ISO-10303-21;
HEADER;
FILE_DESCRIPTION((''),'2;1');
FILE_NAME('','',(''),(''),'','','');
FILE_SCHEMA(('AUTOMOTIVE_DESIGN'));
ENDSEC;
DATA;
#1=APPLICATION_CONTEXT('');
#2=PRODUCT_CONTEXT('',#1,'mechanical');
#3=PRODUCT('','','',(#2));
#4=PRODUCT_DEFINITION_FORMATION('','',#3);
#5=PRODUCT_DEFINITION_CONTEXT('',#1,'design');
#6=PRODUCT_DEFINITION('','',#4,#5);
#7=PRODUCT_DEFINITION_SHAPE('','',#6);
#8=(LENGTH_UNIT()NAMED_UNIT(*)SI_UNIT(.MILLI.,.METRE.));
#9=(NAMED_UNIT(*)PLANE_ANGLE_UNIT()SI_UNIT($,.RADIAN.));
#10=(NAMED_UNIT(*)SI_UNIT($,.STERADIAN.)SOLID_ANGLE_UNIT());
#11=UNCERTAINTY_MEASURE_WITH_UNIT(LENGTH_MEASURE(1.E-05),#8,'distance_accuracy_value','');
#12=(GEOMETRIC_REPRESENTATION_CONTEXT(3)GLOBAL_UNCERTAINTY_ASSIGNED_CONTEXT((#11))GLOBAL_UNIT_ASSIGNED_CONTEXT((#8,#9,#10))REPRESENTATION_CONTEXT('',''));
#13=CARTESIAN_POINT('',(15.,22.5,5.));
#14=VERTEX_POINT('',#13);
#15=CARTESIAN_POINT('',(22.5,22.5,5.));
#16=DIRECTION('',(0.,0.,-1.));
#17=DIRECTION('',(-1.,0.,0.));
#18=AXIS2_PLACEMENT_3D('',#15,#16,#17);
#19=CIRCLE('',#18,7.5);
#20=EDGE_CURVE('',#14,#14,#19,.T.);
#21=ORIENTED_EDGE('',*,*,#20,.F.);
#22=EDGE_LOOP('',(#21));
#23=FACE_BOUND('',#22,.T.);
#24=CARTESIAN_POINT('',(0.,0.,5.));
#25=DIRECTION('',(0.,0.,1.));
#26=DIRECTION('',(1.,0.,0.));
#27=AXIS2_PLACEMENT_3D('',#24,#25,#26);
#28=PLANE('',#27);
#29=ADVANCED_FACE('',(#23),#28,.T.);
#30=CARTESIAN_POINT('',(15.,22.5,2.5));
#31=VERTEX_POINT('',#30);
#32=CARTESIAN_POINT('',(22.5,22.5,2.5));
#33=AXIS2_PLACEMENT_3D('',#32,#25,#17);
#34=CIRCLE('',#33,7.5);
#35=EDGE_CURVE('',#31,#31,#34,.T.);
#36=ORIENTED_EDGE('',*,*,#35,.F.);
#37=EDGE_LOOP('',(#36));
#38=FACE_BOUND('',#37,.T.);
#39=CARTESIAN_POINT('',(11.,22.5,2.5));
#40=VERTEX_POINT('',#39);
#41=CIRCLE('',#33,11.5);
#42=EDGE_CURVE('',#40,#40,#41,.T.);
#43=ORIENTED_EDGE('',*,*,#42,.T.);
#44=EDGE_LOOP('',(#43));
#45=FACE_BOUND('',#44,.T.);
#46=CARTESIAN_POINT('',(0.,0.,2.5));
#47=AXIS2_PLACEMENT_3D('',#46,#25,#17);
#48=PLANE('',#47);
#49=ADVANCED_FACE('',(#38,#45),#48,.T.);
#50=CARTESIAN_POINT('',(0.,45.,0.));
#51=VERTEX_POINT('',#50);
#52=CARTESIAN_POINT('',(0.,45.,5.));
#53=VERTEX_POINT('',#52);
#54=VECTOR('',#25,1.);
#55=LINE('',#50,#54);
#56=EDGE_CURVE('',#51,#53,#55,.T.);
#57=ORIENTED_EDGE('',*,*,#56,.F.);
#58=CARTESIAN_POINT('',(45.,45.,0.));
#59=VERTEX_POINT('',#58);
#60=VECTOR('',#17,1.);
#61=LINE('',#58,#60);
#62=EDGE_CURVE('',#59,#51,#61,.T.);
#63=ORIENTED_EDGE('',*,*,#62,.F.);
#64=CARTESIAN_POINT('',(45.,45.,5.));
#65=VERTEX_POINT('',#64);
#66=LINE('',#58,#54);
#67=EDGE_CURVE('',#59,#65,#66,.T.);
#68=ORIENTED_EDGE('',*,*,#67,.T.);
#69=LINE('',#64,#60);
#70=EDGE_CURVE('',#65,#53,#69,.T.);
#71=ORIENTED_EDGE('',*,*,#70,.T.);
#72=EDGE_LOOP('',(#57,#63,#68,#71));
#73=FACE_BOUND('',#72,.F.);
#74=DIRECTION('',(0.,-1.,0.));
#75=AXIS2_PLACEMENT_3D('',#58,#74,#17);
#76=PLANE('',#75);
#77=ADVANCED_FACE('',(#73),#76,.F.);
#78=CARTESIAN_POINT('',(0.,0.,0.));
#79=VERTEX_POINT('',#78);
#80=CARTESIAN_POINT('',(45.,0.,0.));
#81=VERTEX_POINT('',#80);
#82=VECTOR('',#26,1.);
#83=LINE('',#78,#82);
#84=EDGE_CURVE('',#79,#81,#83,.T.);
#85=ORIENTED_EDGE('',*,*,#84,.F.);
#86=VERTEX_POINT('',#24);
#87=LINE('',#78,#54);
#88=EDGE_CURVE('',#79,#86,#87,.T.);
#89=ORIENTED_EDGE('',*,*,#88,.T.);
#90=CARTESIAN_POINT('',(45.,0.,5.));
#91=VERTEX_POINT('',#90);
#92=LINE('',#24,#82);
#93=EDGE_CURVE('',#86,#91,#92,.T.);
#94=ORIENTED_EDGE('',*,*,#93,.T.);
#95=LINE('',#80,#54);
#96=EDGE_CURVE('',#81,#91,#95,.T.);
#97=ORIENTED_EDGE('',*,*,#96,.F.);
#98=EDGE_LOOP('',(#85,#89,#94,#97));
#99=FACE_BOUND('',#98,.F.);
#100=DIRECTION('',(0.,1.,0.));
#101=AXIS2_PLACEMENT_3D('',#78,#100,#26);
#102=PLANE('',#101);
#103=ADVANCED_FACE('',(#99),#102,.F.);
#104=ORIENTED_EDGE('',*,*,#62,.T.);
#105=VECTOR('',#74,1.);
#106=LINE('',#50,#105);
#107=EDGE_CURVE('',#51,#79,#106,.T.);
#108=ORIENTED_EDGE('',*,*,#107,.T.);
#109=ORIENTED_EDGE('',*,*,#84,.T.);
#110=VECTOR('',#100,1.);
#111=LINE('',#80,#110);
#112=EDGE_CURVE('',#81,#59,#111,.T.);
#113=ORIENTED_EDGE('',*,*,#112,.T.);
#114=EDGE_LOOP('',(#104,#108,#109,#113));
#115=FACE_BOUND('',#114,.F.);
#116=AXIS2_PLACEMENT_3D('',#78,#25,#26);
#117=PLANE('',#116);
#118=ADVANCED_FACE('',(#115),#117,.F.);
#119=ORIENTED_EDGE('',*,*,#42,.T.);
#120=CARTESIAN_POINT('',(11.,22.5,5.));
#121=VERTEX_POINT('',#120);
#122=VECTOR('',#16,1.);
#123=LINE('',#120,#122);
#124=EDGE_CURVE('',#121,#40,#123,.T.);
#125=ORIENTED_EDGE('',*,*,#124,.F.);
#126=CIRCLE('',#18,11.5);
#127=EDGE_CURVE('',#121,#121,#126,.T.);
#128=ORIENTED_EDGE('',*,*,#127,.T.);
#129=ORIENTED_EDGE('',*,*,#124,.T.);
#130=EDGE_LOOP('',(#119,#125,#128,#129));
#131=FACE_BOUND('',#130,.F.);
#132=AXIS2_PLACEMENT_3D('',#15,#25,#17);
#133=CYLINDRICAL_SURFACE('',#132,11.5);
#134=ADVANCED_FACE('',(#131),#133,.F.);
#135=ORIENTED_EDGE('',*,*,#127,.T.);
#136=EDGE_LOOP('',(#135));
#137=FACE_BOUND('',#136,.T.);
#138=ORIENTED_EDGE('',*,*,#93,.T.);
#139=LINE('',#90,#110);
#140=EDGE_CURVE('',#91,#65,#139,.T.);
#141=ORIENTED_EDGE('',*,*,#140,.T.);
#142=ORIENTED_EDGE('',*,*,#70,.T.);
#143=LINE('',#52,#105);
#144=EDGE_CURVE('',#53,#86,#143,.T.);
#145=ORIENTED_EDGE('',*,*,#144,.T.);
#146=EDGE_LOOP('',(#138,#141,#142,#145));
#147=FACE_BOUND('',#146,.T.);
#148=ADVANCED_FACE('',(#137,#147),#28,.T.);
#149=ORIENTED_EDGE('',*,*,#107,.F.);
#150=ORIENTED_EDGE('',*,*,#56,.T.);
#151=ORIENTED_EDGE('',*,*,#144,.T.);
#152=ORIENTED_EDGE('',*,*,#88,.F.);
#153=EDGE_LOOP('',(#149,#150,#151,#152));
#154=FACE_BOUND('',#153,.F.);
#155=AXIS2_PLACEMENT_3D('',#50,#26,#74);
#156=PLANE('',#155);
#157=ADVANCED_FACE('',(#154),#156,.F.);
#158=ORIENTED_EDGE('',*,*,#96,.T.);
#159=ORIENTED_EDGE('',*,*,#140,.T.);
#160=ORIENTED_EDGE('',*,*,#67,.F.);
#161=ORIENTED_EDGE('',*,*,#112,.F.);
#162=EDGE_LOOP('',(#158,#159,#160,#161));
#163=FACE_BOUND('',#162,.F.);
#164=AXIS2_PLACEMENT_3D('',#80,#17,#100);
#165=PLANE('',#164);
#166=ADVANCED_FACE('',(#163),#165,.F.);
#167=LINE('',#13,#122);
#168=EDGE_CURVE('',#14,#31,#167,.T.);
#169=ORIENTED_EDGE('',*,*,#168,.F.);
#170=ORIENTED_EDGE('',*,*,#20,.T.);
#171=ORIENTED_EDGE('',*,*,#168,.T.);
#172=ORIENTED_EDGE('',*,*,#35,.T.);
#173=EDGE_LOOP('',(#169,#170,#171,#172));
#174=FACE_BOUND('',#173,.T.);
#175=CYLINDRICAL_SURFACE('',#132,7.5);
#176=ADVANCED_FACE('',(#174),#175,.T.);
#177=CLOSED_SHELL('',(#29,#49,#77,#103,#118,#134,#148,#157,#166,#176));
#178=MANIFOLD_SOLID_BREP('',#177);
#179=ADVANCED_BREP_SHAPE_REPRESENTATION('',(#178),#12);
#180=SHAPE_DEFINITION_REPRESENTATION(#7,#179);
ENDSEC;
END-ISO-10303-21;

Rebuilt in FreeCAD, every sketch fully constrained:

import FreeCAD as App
import Part
import Sketcher

V = App.Vector


def add_polygon(sketch, points):
    """Adds a closed chain of lines whose ends are joined by coincident constraints."""
    first, n = sketch.GeometryCount, len(points)
    for a, b in zip(points, points[1:] + points[:1]):
        sketch.addGeometry(Part.LineSegment(App.Vector(*a, 0), App.Vector(*b, 0)), False)
    for i in range(n):
        sketch.addConstraint(Sketcher.Constraint("Coincident", first + i, 2, first + (i + 1) % n, 1))

doc = App.newDocument("Part")
body = doc.addObject("PartDesign::Body", "Body")

# Sketch on XY plane
sketch1 = body.newObject("Sketcher::SketchObject", "Sketch")
sketch1.AttachmentSupport = (doc.getObject("XY_Plane"), [""])
sketch1.MapMode = "FlatFace"
add_polygon(sketch1, [(0, 45), (0, 0), (45, 0), (45, 45)])  # lines 0-3
sketch1.addConstraint(Sketcher.Constraint("Vertical", 0))
sketch1.addConstraint(Sketcher.Constraint("Horizontal", 1))
sketch1.addConstraint(Sketcher.Constraint("Vertical", 2))
sketch1.addConstraint(Sketcher.Constraint("Horizontal", 3))
sketch1.addConstraint(Sketcher.Constraint("Coincident", 0, 2, -1, 1))
sketch1.addConstraint(Sketcher.Constraint("Equal", 3, 0))
sketch1.addConstraint(Sketcher.Constraint("DistanceX", 1, 1, 1, 2, 45.0))
pad1 = body.newObject("PartDesign::Pad", "Pad")
pad1.Profile = sketch1
pad1.Length = 5

# Sketch on XY plane
sketch2 = body.newObject("Sketcher::SketchObject", "Sketch001")
sketch2.AttachmentSupport = (doc.getObject("XY_Plane"), [""])
sketch2.MapMode = "FlatFace"
sketch2.AttachmentOffset = App.Placement(V(0, 0, 5), App.Rotation())
sketch2.addGeometry(Part.Circle(V(22.5, 22.5, 0), V(0, 0, 1), 11.5), False)
sketch2.addGeometry(Part.Circle(V(22.5, 22.5, 0), V(0, 0, 1), 7.5), False)
sketch2.addConstraint(Sketcher.Constraint("Coincident", 1, 3, 0, 3))
sketch2.addConstraint(Sketcher.Constraint("Diameter", 0, 23.0))
sketch2.addConstraint(Sketcher.Constraint("Diameter", 1, 15.0))
sketch2.addConstraint(Sketcher.Constraint("DistanceX", -1, 1, 0, 3, 22.5))
sketch2.addConstraint(Sketcher.Constraint("DistanceY", -1, 1, 0, 3, 22.5))
pocket1 = body.newObject("PartDesign::Pocket", "Pocket")
pocket1.Profile = sketch2
pocket1.Length = 2.5

doc.recompute()
